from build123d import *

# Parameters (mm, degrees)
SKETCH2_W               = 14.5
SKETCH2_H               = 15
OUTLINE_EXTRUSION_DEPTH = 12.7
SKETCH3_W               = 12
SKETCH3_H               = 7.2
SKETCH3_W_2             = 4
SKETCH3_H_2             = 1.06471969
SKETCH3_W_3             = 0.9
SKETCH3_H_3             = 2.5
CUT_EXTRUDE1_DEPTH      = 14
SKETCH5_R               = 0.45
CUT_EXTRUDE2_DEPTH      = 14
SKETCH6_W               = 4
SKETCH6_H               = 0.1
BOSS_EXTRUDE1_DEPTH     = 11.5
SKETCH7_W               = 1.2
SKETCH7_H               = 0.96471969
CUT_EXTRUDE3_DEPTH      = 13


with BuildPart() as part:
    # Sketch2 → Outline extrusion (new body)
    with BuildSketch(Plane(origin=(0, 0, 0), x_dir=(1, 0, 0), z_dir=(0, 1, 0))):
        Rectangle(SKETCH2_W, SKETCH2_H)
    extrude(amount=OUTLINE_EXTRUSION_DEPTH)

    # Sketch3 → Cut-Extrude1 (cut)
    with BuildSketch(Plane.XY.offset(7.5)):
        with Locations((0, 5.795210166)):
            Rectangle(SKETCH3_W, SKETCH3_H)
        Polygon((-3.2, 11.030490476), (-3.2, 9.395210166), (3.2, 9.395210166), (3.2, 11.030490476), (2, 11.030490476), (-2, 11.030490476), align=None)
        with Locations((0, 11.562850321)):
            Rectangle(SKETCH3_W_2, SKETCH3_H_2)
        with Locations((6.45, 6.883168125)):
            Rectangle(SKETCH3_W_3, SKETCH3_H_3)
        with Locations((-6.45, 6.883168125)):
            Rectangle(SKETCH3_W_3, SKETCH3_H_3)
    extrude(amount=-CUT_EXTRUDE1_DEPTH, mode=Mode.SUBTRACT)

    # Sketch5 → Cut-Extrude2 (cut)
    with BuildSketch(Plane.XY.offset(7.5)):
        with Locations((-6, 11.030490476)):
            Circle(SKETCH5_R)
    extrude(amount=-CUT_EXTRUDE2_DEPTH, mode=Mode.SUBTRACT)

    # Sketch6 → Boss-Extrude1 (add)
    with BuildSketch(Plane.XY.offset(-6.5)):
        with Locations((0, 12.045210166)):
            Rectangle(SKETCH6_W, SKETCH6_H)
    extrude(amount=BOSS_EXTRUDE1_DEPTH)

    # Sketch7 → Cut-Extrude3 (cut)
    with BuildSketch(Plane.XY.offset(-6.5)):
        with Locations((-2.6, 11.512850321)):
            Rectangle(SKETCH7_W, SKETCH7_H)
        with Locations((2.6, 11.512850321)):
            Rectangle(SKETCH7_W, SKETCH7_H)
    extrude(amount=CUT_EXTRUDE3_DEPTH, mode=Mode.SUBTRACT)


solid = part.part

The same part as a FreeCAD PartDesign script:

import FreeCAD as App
import Part
import Sketcher

V = App.Vector
Q = App.Units.Quantity

doc = App.newDocument("Part")
body = doc.addObject("PartDesign::Body", "Body")

# Sketch on XZ plane
sketch1 = body.newObject("Sketcher::SketchObject", "Sketch")
sketch1.AttachmentSupport = (doc.getObject("XZ_Plane"), [""])
sketch1.MapMode = "FlatFace"
sketch1.addGeometry([
    Part.LineSegment(V(-7, -8, 0), V(-7, 8, 0)),
    Part.LineSegment(V(-7, 8, 0), V(7, 8, 0)),
    Part.LineSegment(V(7, 8, 0), V(7, -8, 0)),
    Part.LineSegment(V(7, -8, 0), V(-7, -8, 0)),
], False)
sketch1.addConstraint([
    Sketcher.Constraint("Coincident", 0, 2, 1, 1),
    Sketcher.Constraint("Coincident", 1, 2, 2, 1),
    Sketcher.Constraint("Coincident", 2, 2, 3, 1),
    Sketcher.Constraint("Coincident", 3, 2, 0, 1),
    Sketcher.Constraint("Vertical", 0),
    Sketcher.Constraint("Horizontal", 1),
    Sketcher.Constraint("Vertical", 2),
    Sketcher.Constraint("Horizontal", 3),
    Sketcher.Constraint("Symmetric", 0, 2, 2, 2, -1, 1),
    Sketcher.Constraint("DistanceY", 0, 1, 0, 2, Q("15 mm")),
    Sketcher.Constraint("DistanceX", 1, 1, 1, 2, Q("14.5 mm")),
])
pad1 = body.newObject("PartDesign::Pad", "Pad")
pad1.Profile = sketch1
pad1.Length = 12.7
pad1.Reversed = True

# Sketch on XY plane
sketch2 = body.newObject("Sketcher::SketchObject", "Sketch001")
sketch2.AttachmentSupport = (doc.getObject("XY_Plane"), [""])
sketch2.MapMode = "FlatFace"
sketch2.AttachmentOffset = App.Placement(V(0, 0, 7.5), App.Rotation())
sketch2.addGeometry([
    Part.LineSegment(V(-6, 5.6, 0), V(-6, 2.2, 0)),  # 0
    Part.LineSegment(V(-6, 2.2, 0), V(6, 2.2, 0)),  # 1
    Part.LineSegment(V(6, 2.2, 0), V(6, 5.6, 0)),  # 2
    Part.LineSegment(V(6, 5.6, 0), V(6.9, 5.6, 0)),  # 3
    Part.LineSegment(V(6.9, 5.6, 0), V(6.9, 8.1, 0)),  # 4
    Part.LineSegment(V(6.9, 8.1, 0), V(6, 8.1, 0)),  # 5
    Part.LineSegment(V(6, 8.1, 0), V(6, 9.4, 0)),  # 6
    Part.LineSegment(V(6, 9.4, 0), V(3.2, 9.4, 0)),  # 7
    Part.LineSegment(V(3.2, 9.4, 0), V(3.2, 11, 0)),  # 8
    Part.LineSegment(V(3.2, 11, 0), V(2, 11, 0)),  # 9
    Part.LineSegment(V(2, 11, 0), V(2, 12.1, 0)),  # 10
    Part.LineSegment(V(2, 12.1, 0), V(-2, 12.1, 0)),  # 11
    Part.LineSegment(V(-2, 12.1, 0), V(-2, 11, 0)),  # 12
    Part.LineSegment(V(-2, 11, 0), V(-3.2, 11, 0)),  # 13
    Part.LineSegment(V(-3.2, 11, 0), V(-3.2, 9.4, 0)),  # 14
    Part.LineSegment(V(-3.2, 9.4, 0), V(-6, 9.4, 0)),  # 15
    Part.LineSegment(V(-6, 9.4, 0), V(-6, 8.1, 0)),  # 16
    Part.LineSegment(V(-6, 8.1, 0), V(-6.9, 8.1, 0)),  # 17
    Part.LineSegment(V(-6.9, 8.1, 0), V(-6.9, 5.6, 0)),  # 18
    Part.LineSegment(V(-6.9, 5.6, 0), V(-6, 5.6, 0)),  # 19
], False)
sketch2.addConstraint([
    Sketcher.Constraint("Coincident", 0, 2, 1, 1),
    Sketcher.Constraint("Coincident", 1, 2, 2, 1),
    Sketcher.Constraint("Coincident", 2, 2, 3, 1),
    Sketcher.Constraint("Coincident", 3, 2, 4, 1),
    Sketcher.Constraint("Coincident", 4, 2, 5, 1),
    Sketcher.Constraint("Coincident", 5, 2, 6, 1),
    Sketcher.Constraint("Coincident", 6, 2, 7, 1),
    Sketcher.Constraint("Coincident", 7, 2, 8, 1),
    Sketcher.Constraint("Coincident", 8, 2, 9, 1),
    Sketcher.Constraint("Coincident", 9, 2, 10, 1),
    Sketcher.Constraint("Coincident", 10, 2, 11, 1),
    Sketcher.Constraint("Coincident", 11, 2, 12, 1),
    Sketcher.Constraint("Coincident", 12, 2, 13, 1),
    Sketcher.Constraint("Coincident", 13, 2, 14, 1),
    Sketcher.Constraint("Coincident", 14, 2, 15, 1),
    Sketcher.Constraint("Coincident", 15, 2, 16, 1),
    Sketcher.Constraint("Coincident", 16, 2, 17, 1),
    Sketcher.Constraint("Coincident", 17, 2, 18, 1),
    Sketcher.Constraint("Coincident", 18, 2, 19, 1),
    Sketcher.Constraint("Coincident", 19, 2, 0, 1),
    Sketcher.Constraint("Vertical", 0),
    Sketcher.Constraint("Horizontal", 1),
    Sketcher.Constraint("Vertical", 2),
    Sketcher.Constraint("Horizontal", 3),
    Sketcher.Constraint("Vertical", 4),
    Sketcher.Constraint("Horizontal", 5),
    Sketcher.Constraint("Vertical", 6),
    Sketcher.Constraint("Horizontal", 7),
    Sketcher.Constraint("Vertical", 8),
    Sketcher.Constraint("Horizontal", 9),
    Sketcher.Constraint("Vertical", 10),
    Sketcher.Constraint("Horizontal", 11),
    Sketcher.Constraint("Vertical", 12),
    Sketcher.Constraint("Horizontal", 13),
    Sketcher.Constraint("Vertical", 14),
    Sketcher.Constraint("Horizontal", 15),
    Sketcher.Constraint("Vertical", 16),
    Sketcher.Constraint("Horizontal", 17),
    Sketcher.Constraint("Vertical", 18),
    Sketcher.Constraint("Horizontal", 19),
    Sketcher.Constraint("Symmetric", 9, 2, 12, 2, -2),
    Sketcher.Constraint("Symmetric", 7, 2, 14, 2, -2),
    Sketcher.Constraint("Symmetric", 5, 2, 16, 2, -2),
    Sketcher.Constraint("Symmetric", 3, 2, 18, 2, -2),
    Sketcher.Constraint("Vertical", 2, 2, 5, 2),
    Sketcher.Constraint("Vertical", 0, 2, 15, 2),
    Sketcher.Constraint("DistanceX", 1, 1, 1, 2, Q("12 mm")),
    Sketcher.Constraint("DistanceX", 11, 2, 11, 1, Q("4 mm")),
    Sketcher.Constraint("DistanceX", 3, 1, 3, 2, Q("0.9 mm")),
    Sketcher.Constraint("DistanceX", 7, 2, 7, 1, Q("2.8 mm")),
    Sketcher.Constraint("DistanceY", 4, 1, 4, 2, Q("2.5 mm")),
    Sketcher.Constraint("DistanceY", 1, 2, 6, 2, Q("7.2 mm")),
    Sketcher.Constraint("DistanceY", 7, 2, 10, 2, Q("2.7 mm")),
    Sketcher.Constraint("DistanceY", 8, 1, 8, 2, Q("1.63528 mm")),
    Sketcher.Constraint("DistanceY", 0, 2, 0, 1, Q("3.437958 mm")),
    Sketcher.Constraint("DistanceY", -1, 1, 0, 2, Q("2.19521 mm")),
])
pocket1 = body.newObject("PartDesign::Pocket", "Pocket")
pocket1.Profile = sketch2
pocket1.Length = 14

# Sketch on XY plane
sketch3 = body.newObject("Sketcher::SketchObject", "Sketch002")
sketch3.AttachmentSupport = (doc.getObject("XY_Plane"), [""])
sketch3.MapMode = "FlatFace"
sketch3.AttachmentOffset = App.Placement(V(0, 0, 7.5), App.Rotation())
sketch3.addGeometry(Part.Circle(V(-6, 11.03, 0), V(0, 0, 1), 0.45), False)
sketch3.addConstraint([
    Sketcher.Constraint("Diameter", 0, Q("0.9 mm")),
    Sketcher.Constraint("DistanceX", 0, 3, -1, 1, Q("6 mm")),
    Sketcher.Constraint("DistanceY", -1, 1, 0, 3, Q("11.03049 mm")),
])
pocket2 = body.newObject("PartDesign::Pocket", "Pocket001")
pocket2.Profile = sketch3
pocket2.Length = 14

# Sketch on XY plane
sketch4 = body.newObject("Sketcher::SketchObject", "Sketch003")
sketch4.AttachmentSupport = (doc.getObject("XY_Plane"), [""])
sketch4.MapMode = "FlatFace"
sketch4.AttachmentOffset = App.Placement(V(0, 0, -6.5), App.Rotation())
sketch4.addGeometry([
    Part.LineSegment(V(-2, 12.1, 0), V(-2, 12, 0)),
    Part.LineSegment(V(-2, 12, 0), V(2, 12, 0)),
    Part.LineSegment(V(2, 12, 0), V(2, 12.1, 0)),
    Part.LineSegment(V(2, 12.1, 0), V(-2, 12.1, 0)),
], False)
sketch4.addConstraint([
    Sketcher.Constraint("Coincident", 0, 2, 1, 1),
    Sketcher.Constraint("Coincident", 1, 2, 2, 1),
    Sketcher.Constraint("Coincident", 2, 2, 3, 1),
    Sketcher.Constraint("Coincident", 3, 2, 0, 1),
    Sketcher.Constraint("Vertical", 0),
    Sketcher.Constraint("Horizontal", 1),
    Sketcher.Constraint("Vertical", 2),
    Sketcher.Constraint("Horizontal", 3),
    Sketcher.Constraint("DistanceX", 1, 1, 1, 2, Q("4 mm")),
    Sketcher.Constraint("DistanceY", 0, 2, 0, 1, Q("0.1 mm")),
    Sketcher.Constraint("DistanceX", 0, 2, -1, 1, Q("2 mm")),
    Sketcher.Constraint("DistanceY", -1, 1, 0, 2, Q("11.99521 mm")),
])
pad2 = body.newObject("PartDesign::Pad", "Pad001")
pad2.Profile = sketch4
pad2.Length = 11.5

# Sketch on XY plane
sketch5 = body.newObject("Sketcher::SketchObject", "Sketch004")
sketch5.AttachmentSupport = (doc.getObject("XY_Plane"), [""])
sketch5.MapMode = "FlatFace"
sketch5.AttachmentOffset = App.Placement(V(0, 0, -6.5), App.Rotation())
sketch5.addGeometry([
    Part.LineSegment(V(-3.2, 12, 0), V(-3.2, 11, 0)),  # 0
    Part.LineSegment(V(-3.2, 11, 0), V(-2, 11, 0)),  # 1
    Part.LineSegment(V(-2, 11, 0), V(-2, 12, 0)),  # 2
    Part.LineSegment(V(-2, 12, 0), V(-3.2, 12, 0)),  # 3
    Part.LineSegment(V(2, 12, 0), V(2, 11, 0)),  # 4
    Part.LineSegment(V(2, 11, 0), V(3.2, 11, 0)),  # 5
    Part.LineSegment(V(3.2, 11, 0), V(3.2, 12, 0)),  # 6
    Part.LineSegment(V(3.2, 12, 0), V(2, 12, 0)),  # 7
], False)
sketch5.addConstraint([
    Sketcher.Constraint("Coincident", 0, 2, 1, 1),
    Sketcher.Constraint("Coincident", 1, 2, 2, 1),
    Sketcher.Constraint("Coincident", 2, 2, 3, 1),
    Sketcher.Constraint("Coincident", 3, 2, 0, 1),
    Sketcher.Constraint("Coincident", 4, 2, 5, 1),
    Sketcher.Constraint("Coincident", 5, 2, 6, 1),
    Sketcher.Constraint("Coincident", 6, 2, 7, 1),
    Sketcher.Constraint("Coincident", 7, 2, 4, 1),
    Sketcher.Constraint("Vertical", 0),
    Sketcher.Constraint("Horizontal", 1),
    Sketcher.Constraint("Vertical", 2),
    Sketcher.Constraint("Horizontal", 3),
    Sketcher.Constraint("Vertical", 4),
    Sketcher.Constraint("Horizontal", 5),
    Sketcher.Constraint("Vertical", 6),
    Sketcher.Constraint("Horizontal", 7),
    Sketcher.Constraint("Symmetric", 1, 2, 4, 2, -2),
    Sketcher.Constraint("Symmetric", 3, 2, 6, 2, -2),
    Sketcher.Constraint("DistanceX", 1, 1, 1, 2, Q("1.2 mm")),
    Sketcher.Constraint("DistanceX", 1, 2, -1, 1, Q("2 mm")),
    Sketcher.Constraint("DistanceY", 0, 2, 0, 1, Q("0.96472 mm")),
    Sketcher.Constraint("DistanceY", -1, 1, 0, 2, Q("11.03049 mm")),
])
pocket3 = body.newObject("PartDesign::Pocket", "Pocket002")
pocket3.Profile = sketch5
pocket3.Length = 13
pocket3.Reversed = True

doc.recompute()
